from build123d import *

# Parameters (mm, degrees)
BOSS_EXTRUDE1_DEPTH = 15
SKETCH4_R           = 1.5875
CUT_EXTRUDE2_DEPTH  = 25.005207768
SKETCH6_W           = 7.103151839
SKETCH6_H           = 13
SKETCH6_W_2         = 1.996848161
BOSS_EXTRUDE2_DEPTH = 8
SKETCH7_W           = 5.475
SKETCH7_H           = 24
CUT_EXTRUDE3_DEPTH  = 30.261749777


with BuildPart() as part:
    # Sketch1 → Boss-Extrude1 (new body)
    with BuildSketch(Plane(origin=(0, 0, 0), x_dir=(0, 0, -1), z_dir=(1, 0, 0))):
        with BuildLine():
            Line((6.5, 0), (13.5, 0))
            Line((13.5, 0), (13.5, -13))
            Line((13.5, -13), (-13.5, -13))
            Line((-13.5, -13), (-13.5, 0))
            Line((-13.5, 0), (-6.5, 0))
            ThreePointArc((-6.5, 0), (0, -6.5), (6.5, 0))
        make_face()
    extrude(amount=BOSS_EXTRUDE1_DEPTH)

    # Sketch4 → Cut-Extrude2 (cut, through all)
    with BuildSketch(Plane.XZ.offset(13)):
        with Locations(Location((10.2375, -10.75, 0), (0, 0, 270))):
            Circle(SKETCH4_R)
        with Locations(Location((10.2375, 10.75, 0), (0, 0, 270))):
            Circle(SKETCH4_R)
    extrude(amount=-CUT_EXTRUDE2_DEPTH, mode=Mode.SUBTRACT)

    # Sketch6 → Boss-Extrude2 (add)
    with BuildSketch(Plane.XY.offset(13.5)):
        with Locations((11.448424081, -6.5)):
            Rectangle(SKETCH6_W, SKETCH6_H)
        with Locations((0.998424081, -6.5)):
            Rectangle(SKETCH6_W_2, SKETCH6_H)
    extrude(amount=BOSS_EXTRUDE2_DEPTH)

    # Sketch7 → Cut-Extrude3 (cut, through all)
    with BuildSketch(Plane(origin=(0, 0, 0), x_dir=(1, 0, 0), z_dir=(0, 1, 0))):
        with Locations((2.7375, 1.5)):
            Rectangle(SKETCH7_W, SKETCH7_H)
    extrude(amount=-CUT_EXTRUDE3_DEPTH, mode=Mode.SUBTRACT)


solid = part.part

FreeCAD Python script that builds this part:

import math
import FreeCAD as App
import Part
import Sketcher
from FreeCAD import Vector
Q = App.Units.Quantity


def add_polygon(sketch, points):
    """Adds a closed chain of lines whose ends are joined by coincident constraints."""
    first, n = sketch.GeometryCount, len(points)
    for a, b in zip(points, points[1:] + points[:1]):
        sketch.addGeometry(Part.LineSegment(App.Vector(*a, 0), App.Vector(*b, 0)), False)
    for i in range(n):
        sketch.addConstraint(Sketcher.Constraint("Coincident", first + i, 2, first + (i + 1) % n, 1))

doc = App.newDocument("Part")
params = doc.addObject("Spreadsheet::Sheet", "Params")
for row, (alias, value) in enumerate([
    ("sketch1_radius", "6.5 mm"),
    ("sketch1_width", "13 mm"),
    ("sketch1_height", "7 mm"),
    ("pad1_length", "15 mm"),
    ("sketch3_height", "13 mm"),
    ("pad2_length", "8 mm"),
    ("sketch4_height", "24 mm"),
], start=1):
    params.set(f"A{row}", alias)
    params.set(f"B{row}", "=" + value)
    params.setAlias(f"B{row}", alias)

body = doc.addObject("PartDesign::Body", "Body")

# Sketch on YZ plane
sketch1 = doc.addObject("Sketcher::SketchObject", "Sketch")
body.addObject(sketch1)
sketch1.AttachmentSupport = (doc.YZ_Plane, [""])
sketch1.MapMode = "FlatFace"
sketch1.addGeometry(Part.LineSegment(Vector(0, -13.5, 0), Vector(0, -6.5, 0)), False)
sketch1.addGeometry(Part.ArcOfCircle(Part.Circle(Vector(0, 0, 0), Vector(0, 0, 1), 6.5), math.radians(90), math.radians(270)), False)
sketch1.addGeometry(Part.LineSegment(Vector(0, 6.5, 0), Vector(0, 13.5, 0)), False)
sketch1.addGeometry(Part.LineSegment(Vector(0, 13.5, 0), Vector(-13, 13.5, 0)), False)
sketch1.addGeometry(Part.LineSegment(Vector(-13, 13.5, 0), Vector(-13, -13.5, 0)), False)
sketch1.addGeometry(Part.LineSegment(Vector(-13, -13.5, 0), Vector(0, -13.5, 0)), False)
sketch1.addConstraint(Sketcher.Constraint("Coincident", 0, 2, 1, 2))
sketch1.addConstraint(Sketcher.Constraint("Coincident", 1, 1, 2, 1))
sketch1.addConstraint(Sketcher.Constraint("Coincident", 2, 2, 3, 1))
sketch1.addConstraint(Sketcher.Constraint("Coincident", 3, 2, 4, 1))
sketch1.addConstraint(Sketcher.Constraint("Coincident", 4, 2, 5, 1))
sketch1.addConstraint(Sketcher.Constraint("Coincident", 5, 2, 0, 1))
sketch1.addConstraint(Sketcher.Constraint("Vertical", 0))
sketch1.addConstraint(Sketcher.Constraint("Vertical", 2))
sketch1.addConstraint(Sketcher.Constraint("Horizontal", 3))
sketch1.addConstraint(Sketcher.Constraint("Vertical", 4))
sketch1.addConstraint(Sketcher.Constraint("Horizontal", 5))
sketch1.addConstraint(Sketcher.Constraint("Coincident", 1, 3, -1, 1))
sketch1.addConstraint(Sketcher.Constraint("Symmetric", 2, 2, 5, 2, -1, 1))
sketch1.addConstraint(Sketcher.Constraint("PointOnObject", 0, 2, -2))
sketch1.addConstraint(Sketcher.Constraint("Radius", 1, Q("6.5 mm")))
sketch1.addConstraint(Sketcher.Constraint("DistanceX", 3, 2, 3, 1, Q("13 mm")))
sketch1.addConstraint(Sketcher.Constraint("DistanceY", 0, 1, 0, 2, Q("7 mm")))
sketch1.setExpression("Constraints[14]", "Params.sketch1_radius")
sketch1.setExpression("Constraints[15]", "Params.sketch1_width")
sketch1.setExpression("Constraints[16]", "Params.sketch1_height")
pad1 = doc.addObject("PartDesign::Pad", "Pad")
body.addObject(pad1)
pad1.Profile = sketch1
pad1.setExpression("Length", "Params.pad1_length")

# Sketch on XZ plane
sketch2 = doc.addObject("Sketcher::SketchObject", "Sketch001")
body.addObject(sketch2)
sketch2.AttachmentSupport = (doc.XZ_Plane, [""])
sketch2.MapMode = "FlatFace"
sketch2.AttachmentOffset = App.Placement(Vector(0, 0, 13), App.Rotation())
sketch2.addGeometry(Part.Circle(Vector(10.2375, -10.75, 0), Vector(0, 0, 1), 1.5875), False)
sketch2.addGeometry(Part.Circle(Vector(10.2375, 10.75, 0), Vector(0, 0, 1), 1.5875), False)
sketch2.addConstraint(Sketcher.Constraint("Equal", 0, 1))
sketch2.addConstraint(Sketcher.Constraint("Symmetric", 0, 3, 1, 3, -1))
sketch2.addConstraint(Sketcher.Constraint("Diameter", 0, Q("3.175 mm")))
sketch2.addConstraint(Sketcher.Constraint("DistanceY", 0, 3, 1, 3, Q("21.5 mm")))
sketch2.addConstraint(Sketcher.Constraint("DistanceX", -1, 1, 0, 3, Q("10.2375 mm")))
pocket1 = doc.addObject("PartDesign::Pocket", "Pocket")
body.addObject(pocket1)
pocket1.Profile = sketch2
pocket1.Type = "ThroughAll"

# Sketch on XY plane
sketch3 = doc.addObject("Sketcher::SketchObject", "Sketch002")
body.addObject(sketch3)
sketch3.AttachmentSupport = (doc.XY_Plane, [""])
sketch3.MapMode = "FlatFace"
sketch3.AttachmentOffset = App.Placement(Vector(0, 0, 13.5), App.Rotation())
add_polygon(sketch3, [(7.896848, 0), (7.896848, -13), (15, -13), (15, 0)])  # lines 0-3
add_polygon(sketch3, [(0, 0), (0, -13), (1.996848, -13), (1.996848, 0)])  # lines 4-7
sketch3.addConstraint(Sketcher.Constraint("Vertical", 0))
sketch3.addConstraint(Sketcher.Constraint("Horizontal", 1))
sketch3.addConstraint(Sketcher.Constraint("Vertical", 2))
sketch3.addConstraint(Sketcher.Constraint("Horizontal", 3))
sketch3.addConstraint(Sketcher.Constraint("Vertical", 4))
sketch3.addConstraint(Sketcher.Constraint("Horizontal", 5))
sketch3.addConstraint(Sketcher.Constraint("Vertical", 6))
sketch3.addConstraint(Sketcher.Constraint("Horizontal", 7))
sketch3.addConstraint(Sketcher.Constraint("Coincident", 7, 2, -1, 1))
sketch3.addConstraint(Sketcher.Constraint("PointOnObject", 2, 2, -1))
sketch3.addConstraint(Sketcher.Constraint("Horizontal", 1, 2, 4, 2))
sketch3.addConstraint(Sketcher.Constraint("DistanceY", 0, 2, 0, 1, Q("13 mm")))
sketch3.addConstraint(Sketcher.Constraint("DistanceX", -1, 1, 1, 2, Q("15 mm")))
sketch3.addConstraint(Sketcher.Constraint("DistanceX", 5, 2, 0, 2, Q("5.9 mm")))
sketch3.addConstraint(Sketcher.Constraint("DistanceX", 1, 1, 1, 2, Q("7.103152 mm")))
sketch3.setExpression("Constraints[19]", "Params.sketch3_height")
pad2 = doc.addObject("PartDesign::Pad", "Pad001")
body.addObject(pad2)
pad2.Profile = sketch3
pad2.setExpression("Length", "Params.pad2_length")

# Sketch on XZ plane
sketch4 = doc.addObject("Sketcher::SketchObject", "Sketch003")
body.addObject(sketch4)
sketch4.AttachmentSupport = (doc.XZ_Plane, [""])
sketch4.MapMode = "FlatFace"
add_polygon(sketch4, [(0, -13.5), (0, 10.5), (5.475, 10.5), (5.475, -13.5)])  # lines 0-3
sketch4.addConstraint(Sketcher.Constraint("Vertical", 0))
sketch4.addConstraint(Sketcher.Constraint("Horizontal", 1))
sketch4.addConstraint(Sketcher.Constraint("Vertical", 2))
sketch4.addConstraint(Sketcher.Constraint("Horizontal", 3))
sketch4.addConstraint(Sketcher.Constraint("PointOnObject", 0, 2, -2))
sketch4.addConstraint(Sketcher.Constraint("DistanceY", 0, 1, 0, 2, Q("24 mm")))
sketch4.addConstraint(Sketcher.Constraint("DistanceY", -1, 1, 0, 2, Q("10.5 mm")))
sketch4.addConstraint(Sketcher.Constraint("DistanceX", 1, 1, 1, 2, Q("5.475 mm")))
sketch4.setExpression("Constraints[9]", "Params.sketch4_height")
pocket2 = doc.addObject("PartDesign::Pocket", "Pocket001")
body.addObject(pocket2)
pocket2.Profile = sketch4
pocket2.Type = "ThroughAll"
pocket2.Reversed = True

doc.recompute()
